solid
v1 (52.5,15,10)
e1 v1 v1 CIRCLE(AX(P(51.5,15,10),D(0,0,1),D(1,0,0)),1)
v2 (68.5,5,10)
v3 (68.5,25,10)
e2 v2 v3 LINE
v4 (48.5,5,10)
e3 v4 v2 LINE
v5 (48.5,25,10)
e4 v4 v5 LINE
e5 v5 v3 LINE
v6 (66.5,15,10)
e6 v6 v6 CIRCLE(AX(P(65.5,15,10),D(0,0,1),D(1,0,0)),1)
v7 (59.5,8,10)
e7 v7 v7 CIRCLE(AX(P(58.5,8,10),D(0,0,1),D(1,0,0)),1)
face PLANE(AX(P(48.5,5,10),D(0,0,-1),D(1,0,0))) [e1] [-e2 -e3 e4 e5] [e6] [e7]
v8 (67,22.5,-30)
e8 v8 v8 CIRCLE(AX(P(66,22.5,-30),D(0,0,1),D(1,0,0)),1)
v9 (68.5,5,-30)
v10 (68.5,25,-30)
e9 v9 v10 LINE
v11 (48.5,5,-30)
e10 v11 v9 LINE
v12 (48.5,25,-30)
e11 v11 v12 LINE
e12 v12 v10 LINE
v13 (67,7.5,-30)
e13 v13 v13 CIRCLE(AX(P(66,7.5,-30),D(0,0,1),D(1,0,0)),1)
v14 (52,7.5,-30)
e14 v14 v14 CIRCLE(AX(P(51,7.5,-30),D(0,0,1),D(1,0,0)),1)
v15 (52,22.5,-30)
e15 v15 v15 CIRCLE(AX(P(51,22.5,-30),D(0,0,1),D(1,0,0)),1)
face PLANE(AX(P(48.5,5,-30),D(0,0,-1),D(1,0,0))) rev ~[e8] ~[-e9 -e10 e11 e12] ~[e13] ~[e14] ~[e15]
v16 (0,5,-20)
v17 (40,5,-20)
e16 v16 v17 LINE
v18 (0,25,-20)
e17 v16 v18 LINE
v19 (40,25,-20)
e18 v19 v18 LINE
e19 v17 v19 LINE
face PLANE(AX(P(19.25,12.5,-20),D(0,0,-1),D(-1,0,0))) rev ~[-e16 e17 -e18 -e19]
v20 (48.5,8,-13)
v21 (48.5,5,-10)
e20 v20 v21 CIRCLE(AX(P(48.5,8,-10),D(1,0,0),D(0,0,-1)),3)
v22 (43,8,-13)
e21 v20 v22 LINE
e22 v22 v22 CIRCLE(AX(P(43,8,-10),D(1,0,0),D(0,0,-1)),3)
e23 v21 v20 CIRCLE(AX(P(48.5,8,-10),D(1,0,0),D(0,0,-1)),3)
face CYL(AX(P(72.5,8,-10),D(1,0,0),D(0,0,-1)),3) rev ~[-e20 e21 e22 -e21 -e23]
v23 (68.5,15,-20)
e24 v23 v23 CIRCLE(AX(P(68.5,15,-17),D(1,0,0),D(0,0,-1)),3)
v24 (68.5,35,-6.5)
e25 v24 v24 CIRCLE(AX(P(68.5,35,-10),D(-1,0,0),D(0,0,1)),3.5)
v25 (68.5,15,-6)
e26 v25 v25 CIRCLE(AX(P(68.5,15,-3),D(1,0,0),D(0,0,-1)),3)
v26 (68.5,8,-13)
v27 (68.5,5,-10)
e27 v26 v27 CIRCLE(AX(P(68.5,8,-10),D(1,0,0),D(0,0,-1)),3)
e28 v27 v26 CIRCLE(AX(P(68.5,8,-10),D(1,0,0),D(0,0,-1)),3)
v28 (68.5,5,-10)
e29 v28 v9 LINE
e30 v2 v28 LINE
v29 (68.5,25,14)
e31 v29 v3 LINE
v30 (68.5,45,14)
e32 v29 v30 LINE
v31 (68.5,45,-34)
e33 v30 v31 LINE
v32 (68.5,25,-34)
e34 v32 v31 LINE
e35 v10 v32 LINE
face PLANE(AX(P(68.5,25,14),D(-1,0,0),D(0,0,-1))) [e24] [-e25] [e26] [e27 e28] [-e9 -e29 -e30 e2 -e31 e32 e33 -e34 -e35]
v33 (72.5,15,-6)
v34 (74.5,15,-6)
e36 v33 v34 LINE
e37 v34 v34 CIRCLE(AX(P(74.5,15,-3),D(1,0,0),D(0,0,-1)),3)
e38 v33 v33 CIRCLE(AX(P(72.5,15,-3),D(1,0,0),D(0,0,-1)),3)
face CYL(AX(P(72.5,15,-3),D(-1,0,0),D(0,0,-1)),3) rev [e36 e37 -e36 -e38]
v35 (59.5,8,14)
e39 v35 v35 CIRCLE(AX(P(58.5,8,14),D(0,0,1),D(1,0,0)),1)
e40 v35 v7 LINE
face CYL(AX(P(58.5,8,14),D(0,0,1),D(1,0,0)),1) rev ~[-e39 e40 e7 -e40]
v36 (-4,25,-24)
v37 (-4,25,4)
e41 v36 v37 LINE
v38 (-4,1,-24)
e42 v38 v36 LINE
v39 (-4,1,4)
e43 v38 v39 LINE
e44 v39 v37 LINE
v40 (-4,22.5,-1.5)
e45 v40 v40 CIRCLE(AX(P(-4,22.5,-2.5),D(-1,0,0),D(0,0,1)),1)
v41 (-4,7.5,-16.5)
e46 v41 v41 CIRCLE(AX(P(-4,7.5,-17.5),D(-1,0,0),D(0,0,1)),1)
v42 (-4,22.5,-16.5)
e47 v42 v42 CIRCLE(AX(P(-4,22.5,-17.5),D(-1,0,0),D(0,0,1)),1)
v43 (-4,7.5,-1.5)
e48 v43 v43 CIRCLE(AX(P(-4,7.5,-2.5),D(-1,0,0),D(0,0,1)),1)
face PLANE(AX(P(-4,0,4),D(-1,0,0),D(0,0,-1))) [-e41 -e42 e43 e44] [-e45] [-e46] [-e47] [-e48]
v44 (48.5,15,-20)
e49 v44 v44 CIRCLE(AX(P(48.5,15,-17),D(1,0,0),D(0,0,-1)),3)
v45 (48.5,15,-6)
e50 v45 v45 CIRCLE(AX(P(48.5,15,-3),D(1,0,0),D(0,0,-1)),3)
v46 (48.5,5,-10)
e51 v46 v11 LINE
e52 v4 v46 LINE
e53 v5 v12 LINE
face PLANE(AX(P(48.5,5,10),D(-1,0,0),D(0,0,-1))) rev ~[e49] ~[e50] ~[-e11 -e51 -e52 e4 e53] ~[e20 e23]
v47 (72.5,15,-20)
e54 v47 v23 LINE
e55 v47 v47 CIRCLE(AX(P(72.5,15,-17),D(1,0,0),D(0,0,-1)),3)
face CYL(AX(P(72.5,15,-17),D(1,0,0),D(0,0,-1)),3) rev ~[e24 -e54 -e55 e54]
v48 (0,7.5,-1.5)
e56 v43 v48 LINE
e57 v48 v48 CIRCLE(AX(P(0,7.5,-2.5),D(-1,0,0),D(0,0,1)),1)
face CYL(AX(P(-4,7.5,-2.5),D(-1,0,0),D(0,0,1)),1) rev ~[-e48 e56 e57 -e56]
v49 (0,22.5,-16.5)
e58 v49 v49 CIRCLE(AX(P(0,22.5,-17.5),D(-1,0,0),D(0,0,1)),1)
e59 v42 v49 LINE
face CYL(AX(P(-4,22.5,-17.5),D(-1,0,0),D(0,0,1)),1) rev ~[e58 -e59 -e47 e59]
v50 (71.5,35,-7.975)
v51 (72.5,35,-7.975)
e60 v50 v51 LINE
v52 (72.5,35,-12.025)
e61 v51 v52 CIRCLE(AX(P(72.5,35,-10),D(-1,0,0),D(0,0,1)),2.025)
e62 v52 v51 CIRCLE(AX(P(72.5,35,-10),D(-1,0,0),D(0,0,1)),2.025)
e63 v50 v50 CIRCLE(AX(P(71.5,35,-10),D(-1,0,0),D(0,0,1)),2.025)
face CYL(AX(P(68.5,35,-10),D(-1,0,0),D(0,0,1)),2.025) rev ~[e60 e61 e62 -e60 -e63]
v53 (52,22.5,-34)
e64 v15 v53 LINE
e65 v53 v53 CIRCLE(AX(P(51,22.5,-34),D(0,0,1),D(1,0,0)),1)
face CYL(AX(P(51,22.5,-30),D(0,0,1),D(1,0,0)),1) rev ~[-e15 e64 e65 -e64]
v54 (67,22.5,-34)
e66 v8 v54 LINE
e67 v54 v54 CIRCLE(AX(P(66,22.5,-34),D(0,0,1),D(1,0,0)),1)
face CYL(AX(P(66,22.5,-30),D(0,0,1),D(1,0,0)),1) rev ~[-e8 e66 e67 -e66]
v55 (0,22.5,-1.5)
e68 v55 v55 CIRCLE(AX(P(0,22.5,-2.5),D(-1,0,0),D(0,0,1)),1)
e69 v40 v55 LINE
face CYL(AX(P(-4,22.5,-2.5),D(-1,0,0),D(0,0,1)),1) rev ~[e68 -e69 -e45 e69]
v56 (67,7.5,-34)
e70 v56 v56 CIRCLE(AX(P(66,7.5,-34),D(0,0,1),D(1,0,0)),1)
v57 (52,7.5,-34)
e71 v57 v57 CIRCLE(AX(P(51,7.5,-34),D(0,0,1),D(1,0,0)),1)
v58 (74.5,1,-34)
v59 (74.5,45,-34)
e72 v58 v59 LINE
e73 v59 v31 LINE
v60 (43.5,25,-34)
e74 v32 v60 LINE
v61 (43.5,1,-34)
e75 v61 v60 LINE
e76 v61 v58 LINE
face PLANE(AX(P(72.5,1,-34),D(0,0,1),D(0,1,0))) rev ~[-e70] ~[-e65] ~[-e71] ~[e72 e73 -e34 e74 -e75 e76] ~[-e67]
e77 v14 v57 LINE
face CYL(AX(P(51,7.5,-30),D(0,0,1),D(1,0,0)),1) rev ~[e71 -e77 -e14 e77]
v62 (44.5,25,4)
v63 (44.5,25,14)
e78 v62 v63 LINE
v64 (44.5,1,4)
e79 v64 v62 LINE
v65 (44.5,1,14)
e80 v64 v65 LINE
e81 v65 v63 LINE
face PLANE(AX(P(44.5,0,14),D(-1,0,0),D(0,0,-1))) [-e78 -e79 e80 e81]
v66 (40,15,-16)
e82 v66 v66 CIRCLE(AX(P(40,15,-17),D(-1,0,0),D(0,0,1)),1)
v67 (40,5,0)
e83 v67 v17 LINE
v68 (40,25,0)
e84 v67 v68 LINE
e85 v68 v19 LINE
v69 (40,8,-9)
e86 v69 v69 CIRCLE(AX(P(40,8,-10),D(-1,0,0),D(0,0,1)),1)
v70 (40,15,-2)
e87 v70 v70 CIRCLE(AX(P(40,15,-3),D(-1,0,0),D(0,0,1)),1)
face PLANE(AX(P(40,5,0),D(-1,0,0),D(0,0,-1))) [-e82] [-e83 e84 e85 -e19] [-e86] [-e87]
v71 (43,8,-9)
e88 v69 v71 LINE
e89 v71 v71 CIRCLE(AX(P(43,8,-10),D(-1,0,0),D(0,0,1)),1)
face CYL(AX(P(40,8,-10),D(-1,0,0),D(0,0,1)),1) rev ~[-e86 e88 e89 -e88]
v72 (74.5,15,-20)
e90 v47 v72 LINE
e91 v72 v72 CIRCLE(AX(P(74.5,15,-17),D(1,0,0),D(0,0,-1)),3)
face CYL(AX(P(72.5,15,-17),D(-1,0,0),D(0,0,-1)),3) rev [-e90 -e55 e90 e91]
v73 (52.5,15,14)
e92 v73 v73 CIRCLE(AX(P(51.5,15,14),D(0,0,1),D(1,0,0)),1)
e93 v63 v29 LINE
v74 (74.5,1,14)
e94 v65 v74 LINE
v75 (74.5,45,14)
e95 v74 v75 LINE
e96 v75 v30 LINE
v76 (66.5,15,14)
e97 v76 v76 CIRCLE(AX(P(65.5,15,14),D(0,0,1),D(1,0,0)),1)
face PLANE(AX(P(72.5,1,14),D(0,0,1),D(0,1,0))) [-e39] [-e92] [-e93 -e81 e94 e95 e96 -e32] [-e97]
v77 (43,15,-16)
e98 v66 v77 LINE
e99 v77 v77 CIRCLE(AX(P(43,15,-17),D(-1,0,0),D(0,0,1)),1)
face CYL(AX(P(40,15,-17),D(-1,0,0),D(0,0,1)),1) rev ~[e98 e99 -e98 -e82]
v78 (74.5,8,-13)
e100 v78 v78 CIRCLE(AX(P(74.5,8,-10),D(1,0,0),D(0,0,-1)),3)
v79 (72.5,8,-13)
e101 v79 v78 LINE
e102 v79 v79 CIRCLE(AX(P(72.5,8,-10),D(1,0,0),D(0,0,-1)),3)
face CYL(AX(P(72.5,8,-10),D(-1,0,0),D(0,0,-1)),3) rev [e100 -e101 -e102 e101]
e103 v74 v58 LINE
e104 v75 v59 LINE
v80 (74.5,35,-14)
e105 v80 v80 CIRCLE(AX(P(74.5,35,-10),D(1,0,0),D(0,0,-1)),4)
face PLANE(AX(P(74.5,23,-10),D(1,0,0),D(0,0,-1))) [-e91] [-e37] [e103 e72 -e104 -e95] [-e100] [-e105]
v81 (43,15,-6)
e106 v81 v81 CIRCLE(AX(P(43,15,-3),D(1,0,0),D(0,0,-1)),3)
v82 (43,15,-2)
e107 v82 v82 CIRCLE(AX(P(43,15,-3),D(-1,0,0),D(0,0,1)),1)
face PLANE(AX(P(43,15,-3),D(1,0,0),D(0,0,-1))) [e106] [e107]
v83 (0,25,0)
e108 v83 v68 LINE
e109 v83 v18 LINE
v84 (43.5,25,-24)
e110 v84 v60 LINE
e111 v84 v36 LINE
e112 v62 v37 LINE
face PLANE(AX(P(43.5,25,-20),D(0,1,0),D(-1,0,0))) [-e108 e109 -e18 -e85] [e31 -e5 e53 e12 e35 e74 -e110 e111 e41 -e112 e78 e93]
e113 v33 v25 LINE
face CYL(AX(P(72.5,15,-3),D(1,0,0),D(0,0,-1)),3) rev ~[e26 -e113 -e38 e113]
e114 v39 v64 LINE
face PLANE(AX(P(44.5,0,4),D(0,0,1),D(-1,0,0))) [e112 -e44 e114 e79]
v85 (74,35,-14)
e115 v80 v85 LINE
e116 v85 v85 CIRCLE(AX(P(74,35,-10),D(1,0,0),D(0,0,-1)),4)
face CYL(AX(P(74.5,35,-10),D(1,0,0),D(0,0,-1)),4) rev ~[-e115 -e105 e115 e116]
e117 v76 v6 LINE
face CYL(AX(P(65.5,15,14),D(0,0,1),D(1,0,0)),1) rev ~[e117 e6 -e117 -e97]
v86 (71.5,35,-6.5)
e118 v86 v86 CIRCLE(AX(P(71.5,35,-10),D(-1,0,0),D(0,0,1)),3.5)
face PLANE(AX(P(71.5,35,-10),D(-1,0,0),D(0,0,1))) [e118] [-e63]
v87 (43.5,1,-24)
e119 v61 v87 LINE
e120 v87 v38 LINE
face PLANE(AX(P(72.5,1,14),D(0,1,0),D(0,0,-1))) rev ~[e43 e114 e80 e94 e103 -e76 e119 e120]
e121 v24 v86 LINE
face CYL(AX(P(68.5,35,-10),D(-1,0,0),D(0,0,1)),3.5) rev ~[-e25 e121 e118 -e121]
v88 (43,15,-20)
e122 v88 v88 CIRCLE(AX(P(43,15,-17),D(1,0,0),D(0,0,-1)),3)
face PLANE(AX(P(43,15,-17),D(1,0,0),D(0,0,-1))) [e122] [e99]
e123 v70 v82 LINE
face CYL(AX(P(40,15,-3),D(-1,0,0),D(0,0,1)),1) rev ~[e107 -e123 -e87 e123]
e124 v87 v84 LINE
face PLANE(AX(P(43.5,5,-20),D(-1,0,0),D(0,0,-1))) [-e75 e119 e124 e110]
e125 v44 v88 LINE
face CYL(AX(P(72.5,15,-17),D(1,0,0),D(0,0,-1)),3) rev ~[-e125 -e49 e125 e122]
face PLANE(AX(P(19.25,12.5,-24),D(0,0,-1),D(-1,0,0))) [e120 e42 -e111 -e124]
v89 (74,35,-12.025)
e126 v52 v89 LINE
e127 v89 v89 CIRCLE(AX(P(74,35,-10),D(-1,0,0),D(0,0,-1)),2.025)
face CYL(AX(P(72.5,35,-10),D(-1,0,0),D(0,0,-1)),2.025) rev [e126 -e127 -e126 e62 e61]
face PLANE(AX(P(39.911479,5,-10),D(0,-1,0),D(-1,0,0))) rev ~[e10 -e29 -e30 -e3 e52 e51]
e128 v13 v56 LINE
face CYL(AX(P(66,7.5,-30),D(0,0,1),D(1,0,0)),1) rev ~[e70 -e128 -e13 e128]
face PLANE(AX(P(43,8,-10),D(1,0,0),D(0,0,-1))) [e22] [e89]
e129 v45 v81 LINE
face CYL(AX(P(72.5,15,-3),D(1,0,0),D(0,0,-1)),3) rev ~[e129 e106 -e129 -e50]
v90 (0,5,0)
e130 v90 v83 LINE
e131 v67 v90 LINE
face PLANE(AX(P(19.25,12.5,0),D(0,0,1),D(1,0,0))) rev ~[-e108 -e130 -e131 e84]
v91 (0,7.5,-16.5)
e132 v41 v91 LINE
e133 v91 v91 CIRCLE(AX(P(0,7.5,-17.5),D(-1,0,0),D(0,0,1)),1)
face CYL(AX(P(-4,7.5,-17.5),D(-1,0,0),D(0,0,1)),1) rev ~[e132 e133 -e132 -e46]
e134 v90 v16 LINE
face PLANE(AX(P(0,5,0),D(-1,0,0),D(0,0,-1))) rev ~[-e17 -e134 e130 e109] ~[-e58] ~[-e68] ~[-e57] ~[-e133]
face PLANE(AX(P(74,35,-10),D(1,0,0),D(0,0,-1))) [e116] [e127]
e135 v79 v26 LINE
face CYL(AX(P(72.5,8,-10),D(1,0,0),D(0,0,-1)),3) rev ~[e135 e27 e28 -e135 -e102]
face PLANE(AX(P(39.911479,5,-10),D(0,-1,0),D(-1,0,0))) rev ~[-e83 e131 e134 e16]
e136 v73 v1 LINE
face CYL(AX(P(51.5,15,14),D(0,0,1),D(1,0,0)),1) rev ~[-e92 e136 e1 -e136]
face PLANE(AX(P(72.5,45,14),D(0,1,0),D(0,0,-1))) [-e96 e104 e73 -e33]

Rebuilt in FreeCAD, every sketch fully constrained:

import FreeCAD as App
import Part
import Sketcher
from FreeCAD import Vector

doc = App.newDocument("Part")
params = doc.addObject("Spreadsheet::Sheet", "Params")
for row, (alias, value) in enumerate([
    ("sketch1_width", "30 mm"),
    ("sketch1_height", "20 mm"),
    ("sketch1_height2", "15 mm"),
    ("sketch1_width2", "48.5 mm"),
    ("pad1_length", "5 mm"),
    ("sketch2_width", "30 mm"),
    ("sketch2_width2", "20 mm"),
    ("sketch2_width3", "5 mm"),
    ("sketch2_height", "15 mm"),
    ("sketch2_height2", "40 mm"),
    ("pad2_length", "20 mm"),
    ("sketch3_height", "25 mm"),
    ("sketch3_width", "48.5 mm"),
    ("pad3_length", "4 mm"),
    ("sketch4_height", "25 mm"),
    ("sketch4_width", "48.5 mm"),
    ("pad4_length", "4 mm"),
    ("sketch5_width", "29 mm"),
    ("sketch5_width2", "1 mm"),
    ("sketch5_height", "48 mm"),
    ("sketch5_height2", "10 mm"),
    ("pocket1_length", "218 mm"),
    ("sketch6_width", "4 mm"),
    ("sketch6_height", "48 mm"),
    ("pad5_length", "20 mm"),
    ("sketch7_width", "1 mm"),
    ("sketch7_height", "48 mm"),
    ("pocket2_length", "87 mm"),
    ("sketch8_diameter", "2 mm"),
    ("pocket3_length", "10 mm"),
    ("sketch9_diameter", "2 mm"),
    ("pocket4_length", "60 mm"),
    ("sketch10_diameter", "6 mm"),
    ("pocket5_length", "29.5 mm"),
    ("sketch11_diameter", "2 mm"),
    ("pocket6_length", "29.5 mm"),
    ("sketch12_diameter", "2 mm"),
    ("pocket7_length", "29.5 mm"),
    ("sketch13_diameter", "3.55 mm"),
    ("pocket8_length", "29.5 mm"),
    ("sketch14_diameter", "4.05 mm"),
    ("pocket9_length", "29.5 mm"),
    ("sketch15_diameter", "7 mm"),
    ("pocket10_length", "3 mm"),
    ("sketch16_diameter", "6 mm"),
    ("sketch16_diameter2", "4.05 mm"),
    ("sketch16_width", "44 mm"),
    ("sketch16_height", "48 mm"),
    ("pad6_length", "2 mm"),
    ("sketch17_diameter", "8 mm"),
    ("pocket11_length", "0.5 mm"),
], start=1):
    params.set(f"A{row}", alias)
    params.set(f"B{row}", "=" + value)
    params.setAlias(f"B{row}", alias)

body = doc.addObject("PartDesign::Body", "Body")

# Sketch on XZ plane
sketch1 = body.newObject("Sketcher::SketchObject", "Sketch")
sketch1.AttachmentSupport = (doc.getObject("XZ_Plane"), [""])
sketch1.MapMode = "FlatFace"
sketch1.addGeometry([
    Part.LineSegment(Vector(44, -20, 0), Vector(-5, -20, 0)),  # 0
    Part.LineSegment(Vector(-5, -20, 0), Vector(-5, 0, 0)),  # 1
    Part.LineSegment(Vector(-5, 0, 0), Vector(44, 0, 0)),  # 2
    Part.LineSegment(Vector(44, 0, 0), Vector(44, 15, 0)),  # 3
    Part.LineSegment(Vector(44, 15, 0), Vector(74, 15, 0)),  # 4
    Part.LineSegment(Vector(74, 15, 0), Vector(74, -35, 0)),  # 5
    Part.LineSegment(Vector(74, -35, 0), Vector(44, -35, 0)),  # 6
    Part.LineSegment(Vector(44, -35, 0), Vector(44, -20, 0)),  # 7
], False)
sketch1.addConstraint([
    Sketcher.Constraint("Coincident", 0, 2, 1, 1),
    Sketcher.Constraint("Coincident", 1, 2, 2, 1),
    Sketcher.Constraint("Coincident", 2, 2, 3, 1),
    Sketcher.Constraint("Coincident", 3, 2, 4, 1),
    Sketcher.Constraint("Coincident", 4, 2, 5, 1),
    Sketcher.Constraint("Coincident", 5, 2, 6, 1),
    Sketcher.Constraint("Coincident", 6, 2, 7, 1),
    Sketcher.Constraint("Coincident", 7, 2, 0, 1),
    Sketcher.Constraint("Horizontal", 0),
    Sketcher.Constraint("Vertical", 1),
    Sketcher.Constraint("Horizontal", 2),
    Sketcher.Constraint("Vertical", 3),
    Sketcher.Constraint("Horizontal", 4),
    Sketcher.Constraint("Vertical", 5),
    Sketcher.Constraint("Horizontal", 6),
    Sketcher.Constraint("Vertical", 7),
    Sketcher.Constraint("PointOnObject", 1, 2, -1),
    Sketcher.Constraint("Vertical", 3, 2, 6, 2),
    Sketcher.Constraint("Equal", 3, 7),
    Sketcher.Constraint("DistanceX", 4, 1, 4, 2, 30.0),
    Sketcher.Constraint("DistanceY", 1, 1, 1, 2, 20.0),
    Sketcher.Constraint("DistanceY", 3, 1, 3, 2, 15.0),
    Sketcher.Constraint("DistanceX", 0, 2, 0, 1, 48.5),
    Sketcher.Constraint("DistanceX", 0, 2, -1, 1, 5.0),
])
sketch1.setExpression("Constraints[19]", "Params.sketch1_width")
sketch1.setExpression("Constraints[20]", "Params.sketch1_height")
sketch1.setExpression("Constraints[21]", "Params.sketch1_height2")
sketch1.setExpression("Constraints[22]", "Params.sketch1_width2")
pad1 = body.newObject("PartDesign::Pad", "Pad")
pad1.Profile = sketch1
pad1.setExpression("Length", "Params.pad1_length")
pad1.Reversed = True

# Sketch on XZ plane
sketch2 = body.newObject("Sketcher::SketchObject", "Sketch001")
sketch2.AttachmentSupport = (doc.getObject("XZ_Plane"), [""])
sketch2.MapMode = "FlatFace"
sketch2.AttachmentOffset = App.Placement(Vector(0, 0, -5), App.Rotation())
sketch2.addGeometry([
    Part.LineSegment(Vector(43.5, -20, 0), Vector(40, -20, 0)),  # 0
    Part.LineSegment(Vector(40, -20, 0), Vector(40, 0, 0)),  # 1
    Part.LineSegment(Vector(40, 0, 0), Vector(43.5, 0, 0)),  # 2
    Part.LineSegment(Vector(43.5, 0, 0), Vector(43.5, 15, 0)),  # 3
    Part.LineSegment(Vector(43.5, 15, 0), Vector(73.5, 15, 0)),  # 4
    Part.LineSegment(Vector(73.5, 15, 0), Vector(73.5, -35, 0)),  # 5
    Part.LineSegment(Vector(73.5, -35, 0), Vector(43.5, -35, 0)),  # 6
    Part.LineSegment(Vector(43.5, -35, 0), Vector(43.5, -20, 0)),  # 7
    Part.LineSegment(Vector(48.5, 10, 0), Vector(48.5, -30, 0)),  # 8
    Part.LineSegment(Vector(48.5, -30, 0), Vector(68.5, -30, 0)),  # 9
    Part.LineSegment(Vector(68.5, -30, 0), Vector(68.5, 10, 0)),  # 10
    Part.LineSegment(Vector(68.5, 10, 0), Vector(48.5, 10, 0)),  # 11
    Part.LineSegment(Vector(-5, -20, 0), Vector(-5, 0, 0)),  # 12
    Part.LineSegment(Vector(-5, 0, 0), Vector(0, 0, 0)),  # 13
    Part.LineSegment(Vector(0, 0, 0), Vector(0, -20, 0)),  # 14
    Part.LineSegment(Vector(0, -20, 0), Vector(-5, -20, 0)),  # 15
], False)
sketch2.addConstraint([
    Sketcher.Constraint("Coincident", 0, 2, 1, 1),
    Sketcher.Constraint("Coincident", 1, 2, 2, 1),
    Sketcher.Constraint("Coincident", 2, 2, 3, 1),
    Sketcher.Constraint("Coincident", 3, 2, 4, 1),
    Sketcher.Constraint("Coincident", 4, 2, 5, 1),
    Sketcher.Constraint("Coincident", 5, 2, 6, 1),
    Sketcher.Constraint("Coincident", 6, 2, 7, 1),
    Sketcher.Constraint("Coincident", 7, 2, 0, 1),
    Sketcher.Constraint("Coincident", 8, 2, 9, 1),
    Sketcher.Constraint("Coincident", 9, 2, 10, 1),
    Sketcher.Constraint("Coincident", 10, 2, 11, 1),
    Sketcher.Constraint("Coincident", 11, 2, 8, 1),
    Sketcher.Constraint("Coincident", 12, 2, 13, 1),
    Sketcher.Constraint("Coincident", 13, 2, 14, 1),
    Sketcher.Constraint("Coincident", 14, 2, 15, 1),
    Sketcher.Constraint("Coincident", 15, 2, 12, 1),
    Sketcher.Constraint("Horizontal", 0),
    Sketcher.Constraint("Vertical", 1),
    Sketcher.Constraint("Horizontal", 2),
    Sketcher.Constraint("Vertical", 3),
    Sketcher.Constraint("Horizontal", 4),
    Sketcher.Constraint("Vertical", 5),
    Sketcher.Constraint("Horizontal", 6),
    Sketcher.Constraint("Vertical", 7),
    Sketcher.Constraint("Vertical", 8),
    Sketcher.Constraint("Horizontal", 9),
    Sketcher.Constraint("Vertical", 10),
    Sketcher.Constraint("Horizontal", 11),
    Sketcher.Constraint("Vertical", 12),
    Sketcher.Constraint("Horizontal", 13),
    Sketcher.Constraint("Vertical", 14),
    Sketcher.Constraint("Horizontal", 15),
    Sketcher.Constraint("Coincident", 13, 2, -1, 1),
    Sketcher.Constraint("PointOnObject", 1, 2, -1),
    Sketcher.Constraint("Horizontal", 7, 2, 14, 2),
    Sketcher.Constraint("Vertical", 3, 2, 6, 2),
    Sketcher.Constraint("Equal", 11, 1),
    Sketcher.Constraint("Equal", 3, 7),
    Sketcher.Constraint("DistanceX", 4, 1, 4, 2, 30.0),
    Sketcher.Constraint("DistanceX", 9, 1, 9, 2, 20.0),
    Sketcher.Constraint("DistanceX", 13, 1, 13, 2, 5.0),
    Sketcher.Constraint("DistanceY", 3, 1, 3, 2, 15.0),
    Sketcher.Constraint("DistanceY", 8, 2, 8, 1, 40.0),
    Sketcher.Constraint("DistanceX", 0, 2, 0, 1, 3.5),
    Sketcher.Constraint("DistanceX", -1, 1, 0, 2, 40.0),
    Sketcher.Constraint("DistanceY", 8, 2, -1, 1, 30.0),
    Sketcher.Constraint("DistanceX", 6, 2, 8, 2, 5.0),
])
sketch2.setExpression("Constraints[38]", "Params.sketch2_width")
sketch2.setExpression("Constraints[39]", "Params.sketch2_width2")
sketch2.setExpression("Constraints[40]", "Params.sketch2_width3")
sketch2.setExpression("Constraints[41]", "Params.sketch2_height")
sketch2.setExpression("Constraints[42]", "Params.sketch2_height2")
pad2 = body.newObject("PartDesign::Pad", "Pad001")
pad2.Profile = sketch2
pad2.setExpression("Length", "Params.pad2_length")
pad2.Reversed = True

# Sketch on XY plane
sketch3 = body.newObject("Sketcher::SketchObject", "Sketch002")
sketch3.AttachmentSupport = (doc.getObject("XY_Plane"), [""])
sketch3.MapMode = "FlatFace"
sketch3.addGeometry([
    Part.LineSegment(Vector(-5, 25, 0), Vector(-5, 0, 0)),
    Part.LineSegment(Vector(-5, 0, 0), Vector(44, 0, 0)),
    Part.LineSegment(Vector(44, 0, 0), Vector(44, 25, 0)),
    Part.LineSegment(Vector(44, 25, 0), Vector(-5, 25, 0)),
], False)
sketch3.addConstraint([
    Sketcher.Constraint("Coincident", 0, 2, 1, 1),
    Sketcher.Constraint("Coincident", 1, 2, 2, 1),
    Sketcher.Constraint("Coincident", 2, 2, 3, 1),
    Sketcher.Constraint("Coincident", 3, 2, 0, 1),
    Sketcher.Constraint("Vertical", 0),
    Sketcher.Constraint("Horizontal", 1),
    Sketcher.Constraint("Vertical", 2),
    Sketcher.Constraint("Horizontal", 3),
    Sketcher.Constraint("PointOnObject", 0, 2, -1),
    Sketcher.Constraint("DistanceY", 0, 2, 0, 1, 25.0),
    Sketcher.Constraint("DistanceX", 1, 1, 1, 2, 48.5),
    Sketcher.Constraint("DistanceX", 0, 2, -1, 1, 5.0),
])
sketch3.setExpression("Constraints[9]", "Params.sketch3_height")
sketch3.setExpression("Constraints[10]", "Params.sketch3_width")
pad3 = body.newObject("PartDesign::Pad", "Pad002")
pad3.Profile = sketch3
pad3.setExpression("Length", "Params.pad3_length")

# Sketch on XY plane
sketch4 = body.newObject("Sketcher::SketchObject", "Sketch003")
sketch4.AttachmentSupport = (doc.getObject("XY_Plane"), [""])
sketch4.MapMode = "FlatFace"
sketch4.AttachmentOffset = App.Placement(Vector(0, 0, -20), App.Rotation())
sketch4.addGeometry([
    Part.LineSegment(Vector(44, 25, 0), Vector(44, 0, 0)),
    Part.LineSegment(Vector(44, 0, 0), Vector(-5, 0, 0)),
    Part.LineSegment(Vector(-5, 0, 0), Vector(-5, 25, 0)),
    Part.LineSegment(Vector(-5, 25, 0), Vector(44, 25, 0)),
], False)
sketch4.addConstraint([
    Sketcher.Constraint("Coincident", 0, 2, 1, 1),
    Sketcher.Constraint("Coincident", 1, 2, 2, 1),
    Sketcher.Constraint("Coincident", 2, 2, 3, 1),
    Sketcher.Constraint("Coincident", 3, 2, 0, 1),
    Sketcher.Constraint("Vertical", 0),
    Sketcher.Constraint("Horizontal", 1),
    Sketcher.Constraint("Vertical", 2),
    Sketcher.Constraint("Horizontal", 3),
    Sketcher.Constraint("PointOnObject", 0, 2, -1),
    Sketcher.Constraint("DistanceY", 0, 2, 0, 1, 25.0),
    Sketcher.Constraint("DistanceX", 1, 2, 1, 1, 48.5),
    Sketcher.Constraint("DistanceX", 1, 2, -1, 1, 5.0),
])
sketch4.setExpression("Constraints[9]", "Params.sketch4_height")
sketch4.setExpression("Constraints[10]", "Params.sketch4_width")
pad4 = body.newObject("PartDesign::Pad", "Pad003")
pad4.Profile = sketch4
pad4.setExpression("Length", "Params.pad4_length")
pad4.Reversed = True

# Sketch on XZ plane
sketch5 = body.newObject("Sketcher::SketchObject", "Sketch004")
sketch5.AttachmentSupport = (doc.getObject("XZ_Plane"), [""])
sketch5.MapMode = "FlatFace"
sketch5.addGeometry([
    Part.LineSegment(Vector(-127.3, 77.7, 0), Vector(-127.3, -89, 0)),  # 0
    Part.LineSegment(Vector(-127.3, -89, 0), Vector(166.7, -89, 0)),  # 1
    Part.LineSegment(Vector(166.7, -89, 0), Vector(166.7, 77.7, 0)),  # 2
    Part.LineSegment(Vector(166.7, 77.7, 0), Vector(-127.3, 77.7, 0)),  # 3
    Part.LineSegment(Vector(72.5, 14, 0), Vector(72.5, -34, 0)),  # 4
    Part.LineSegment(Vector(72.5, -34, 0), Vector(43.5, -34, 0)),  # 5
    Part.LineSegment(Vector(43.5, -34, 0), Vector(-4, -32.7, 0)),  # 6
    Part.LineSegment(Vector(-4, -32.7, 0), Vector(-4, 4, 0)),  # 7
    Part.LineSegment(Vector(-4, 4, 0), Vector(-3.6, 8.8, 0)),  # 8
    Part.LineSegment(Vector(-3.6, 8.8, 0), Vector(42.2, 8.8, 0)),  # 9
    Part.LineSegment(Vector(42.2, 8.8, 0), Vector(43.5, 4, 0)),  # 10
    Part.LineSegment(Vector(43.5, 4, 0), Vector(44.5, 4, 0)),  # 11
    Part.LineSegment(Vector(44.5, 4, 0), Vector(44.5, 14, 0)),  # 12
    Part.LineSegment(Vector(44.5, 14, 0), Vector(72.5, 14, 0)),  # 13
], False)
sketch5.addConstraint([
    Sketcher.Constraint("Coincident", 0, 2, 1, 1),
    Sketcher.Constraint("Coincident", 1, 2, 2, 1),
    Sketcher.Constraint("Coincident", 2, 2, 3, 1),
    Sketcher.Constraint("Coincident", 3, 2, 0, 1),
    Sketcher.Constraint("Coincident", 4, 2, 5, 1),
    Sketcher.Constraint("Coincident", 5, 2, 6, 1),
    Sketcher.Constraint("Coincident", 6, 2, 7, 1),
    Sketcher.Constraint("Coincident", 7, 2, 8, 1),
    Sketcher.Constraint("Coincident", 8, 2, 9, 1),
    Sketcher.Constraint("Coincident", 9, 2, 10, 1),
    Sketcher.Constraint("Coincident", 10, 2, 11, 1),
    Sketcher.Constraint("Coincident", 11, 2, 12, 1),
    Sketcher.Constraint("Coincident", 12, 2, 13, 1),
    Sketcher.Constraint("Coincident", 13, 2, 4, 1),
    Sketcher.Constraint("Vertical", 0),
    Sketcher.Constraint("Horizontal", 1),
    Sketcher.Constraint("Vertical", 2),
    Sketcher.Constraint("Horizontal", 3),
    Sketcher.Constraint("Vertical", 4),
    Sketcher.Constraint("Horizontal", 5),
    Sketcher.Constraint("Vertical", 7),
    Sketcher.Constraint("Horizontal", 9),
    Sketcher.Constraint("Horizontal", 11),
    Sketcher.Constraint("Vertical", 12),
    Sketcher.Constraint("Horizontal", 13),
    Sketcher.Constraint("Horizontal", 7, 2, 10, 2),
    Sketcher.Constraint("Vertical", 5, 2, 10, 2),
    Sketcher.Constraint("DistanceX", 5, 2, 5, 1, 29.0),
    Sketcher.Constraint("DistanceX", 11, 1, 11, 2, 1.0),
    Sketcher.Constraint("DistanceY", 4, 2, 4, 1, 48.0),
    Sketcher.Constraint("DistanceY", 12, 1, 12, 2, 10.0),
    Sketcher.Constraint("DistanceY", 4, 2, -1, 1, 34.0),
    Sketcher.Constraint("DistanceX", 6, 2, -1, 1, 4.0),
    Sketcher.Constraint("DistanceX", -1, 1, 4, 2, 72.5),
    Sketcher.Constraint("DistanceX", 9, 1, 9, 2, 45.739638),
    Sketcher.Constraint("DistanceY", 0, 2, 0, 1, 166.612051),
    Sketcher.Constraint("DistanceY", 0, 2, 6, 2, 56.3095),
    Sketcher.Constraint("DistanceX", 1, 1, 1, 2, 293.991295),
    Sketcher.Constraint("DistanceY", 7, 1, 7, 2, 36.651206),
    Sketcher.Constraint("DistanceX", -1, 1, 1, 2, 166.732748),
    Sketcher.Constraint("DistanceY", -1, 1, 8, 2, 8.83202),
    Sketcher.Constraint("Distance", 8, 4.851604),
])
sketch5.setExpression("Constraints[27]", "Params.sketch5_width")
sketch5.setExpression("Constraints[28]", "Params.sketch5_width2")
sketch5.setExpression("Constraints[29]", "Params.sketch5_height")
sketch5.setExpression("Constraints[30]", "Params.sketch5_height2")
pocket1 = body.newObject("PartDesign::Pocket", "Pocket")
pocket1.Profile = sketch5
pocket1.setExpression("Length", "Params.pocket1_length")

# Sketch on XZ plane
sketch6 = body.newObject("Sketcher::SketchObject", "Sketch005")
sketch6.AttachmentSupport = (doc.getObject("XZ_Plane"), [""])
sketch6.MapMode = "FlatFace"
sketch6.AttachmentOffset = App.Placement(Vector(0, 0, -25), App.Rotation())
sketch6.addGeometry([
    Part.LineSegment(Vector(68.5, -34, 0), Vector(68.5, 14, 0)),
    Part.LineSegment(Vector(68.5, 14, 0), Vector(72.5, 14, 0)),
    Part.LineSegment(Vector(72.5, 14, 0), Vector(72.5, -34, 0)),
    Part.LineSegment(Vector(72.5, -34, 0), Vector(68.5, -34, 0)),
], False)
sketch6.addConstraint([
    Sketcher.Constraint("Coincident", 0, 2, 1, 1),
    Sketcher.Constraint("Coincident", 1, 2, 2, 1),
    Sketcher.Constraint("Coincident", 2, 2, 3, 1),
    Sketcher.Constraint("Coincident", 3, 2, 0, 1),
    Sketcher.Constraint("Vertical", 0),
    Sketcher.Constraint("Horizontal", 1),
    Sketcher.Constraint("Vertical", 2),
    Sketcher.Constraint("Horizontal", 3),
    Sketcher.Constraint("DistanceX", 1, 1, 1, 2, 4.0),
    Sketcher.Constraint("DistanceY", 0, 1, 0, 2, 48.0),
    Sketcher.Constraint("DistanceY", -1, 1, 0, 2, 14.0),
    Sketcher.Constraint("DistanceX", -1, 1, 0, 2, 68.5),
])
sketch6.setExpression("Constraints[8]", "Params.sketch6_width")
sketch6.setExpression("Constraints[9]", "Params.sketch6_height")
pad5 = body.newObject("PartDesign::Pad", "Pad004")
pad5.Profile = sketch6
pad5.setExpression("Length", "Params.pad5_length")
pad5.Reversed = True

# Sketch on YZ plane
sketch7 = body.newObject("Sketcher::SketchObject", "Sketch006")
sketch7.AttachmentSupport = (doc.getObject("YZ_Plane"), [""])
sketch7.MapMode = "FlatFace"
sketch7.AttachmentOffset = App.Placement(Vector(0, 0, -4), App.Rotation())
sketch7.addGeometry([
    Part.LineSegment(Vector(1, -34, 0), Vector(0, -34, 0)),
    Part.LineSegment(Vector(0, -34, 0), Vector(0, 14, 0)),
    Part.LineSegment(Vector(0, 14, 0), Vector(1, 14, 0)),
    Part.LineSegment(Vector(1, 14, 0), Vector(1, -34, 0)),
], False)
sketch7.addConstraint([
    Sketcher.Constraint("Coincident", 0, 2, 1, 1),
    Sketcher.Constraint("Coincident", 1, 2, 2, 1),
    Sketcher.Constraint("Coincident", 2, 2, 3, 1),
    Sketcher.Constraint("Coincident", 3, 2, 0, 1),
    Sketcher.Constraint("Horizontal", 0),
    Sketcher.Constraint("Vertical", 1),
    Sketcher.Constraint("Horizontal", 2),
    Sketcher.Constraint("Vertical", 3),
    Sketcher.Constraint("PointOnObject", 0, 2, -2),
    Sketcher.Constraint("DistanceX", 0, 2, 0, 1, 1.0),
    Sketcher.Constraint("DistanceY", 1, 1, 1, 2, 48.0),
    Sketcher.Constraint("DistanceY", 0, 2, -1, 1, 34.0),
])
sketch7.setExpression("Constraints[9]", "Params.sketch7_width")
sketch7.setExpression("Constraints[10]", "Params.sketch7_height")
pocket2 = body.newObject("PartDesign::Pocket", "Pocket001")
pocket2.Profile = sketch7
pocket2.setExpression("Length", "Params.pocket2_length")
pocket2.Reversed = True

# Sketch on YZ plane
sketch8 = body.newObject("Sketcher::SketchObject", "Sketch007")
sketch8.AttachmentSupport = (doc.getObject("YZ_Plane"), [""])
sketch8.MapMode = "FlatFace"
sketch8.AttachmentOffset = App.Placement(Vector(0, 0, -4), App.Rotation())
sketch8.addGeometry([
    Part.Circle(Vector(22.5, -2.5, 0), Vector(0, 0, 1), 1),
    Part.Circle(Vector(22.5, -17.5, 0), Vector(0, 0, 1), 1),
    Part.Circle(Vector(7.5, -17.5, 0), Vector(0, 0, 1), 1),
    Part.Circle(Vector(7.5, -2.5, 0), Vector(0, 0, 1), 1),
], False)
sketch8.addConstraint([
    Sketcher.Constraint("Equal", 0, 1),
    Sketcher.Constraint("Equal", 1, 2),
    Sketcher.Constraint("Equal", 2, 3),
    Sketcher.Constraint("Horizontal", 1, 3, 2, 3),
    Sketcher.Constraint("Horizontal", 0, 3, 3, 3),
    Sketcher.Constraint("Vertical", 0, 3, 1, 3),
    Sketcher.Constraint("Vertical", 2, 3, 3, 3),
    Sketcher.Constraint("Diameter", 0, 2.0),
    Sketcher.Constraint("DistanceY", 1, 3, 0, 3, 15.0),
    Sketcher.Constraint("DistanceX", 2, 3, 1, 3, 15.0),
    Sketcher.Constraint("DistanceX", -1, 1, 0, 3, 22.5),
    Sketcher.Constraint("DistanceY", 0, 3, -1, 1, 2.5),
])
sketch8.setExpression("Constraints[7]", "Params.sketch8_diameter")
pocket3 = body.newObject("PartDesign::Pocket", "Pocket002")
pocket3.Profile = sketch8
pocket3.setExpression("Length", "Params.pocket3_length")
pocket3.Reversed = True

# Sketch on YZ plane
sketch9 = body.newObject("Sketcher::SketchObject", "Sketch008")
sketch9.AttachmentSupport = (doc.getObject("YZ_Plane"), [""])
sketch9.MapMode = "FlatFace"
sketch9.AttachmentOffset = App.Placement(Vector(0, 0, 40), App.Rotation())
sketch9.addGeometry([
    Part.Circle(Vector(15, -3, 0), Vector(0, 0, 1), 1),
    Part.Circle(Vector(8, -10, 0), Vector(0, 0, 1), 1),
    Part.Circle(Vector(15, -17, 0), Vector(0, 0, 1), 1),
], False)
sketch9.addConstraint([
    Sketcher.Constraint("Equal", 0, 1),
    Sketcher.Constraint("Equal", 1, 2),
    Sketcher.Constraint("Vertical", 0, 3, 2, 3),
    Sketcher.Constraint("Diameter", 0, 2.0),
    Sketcher.Constraint("DistanceX", -1, 1, 0, 3, 15.0),
    Sketcher.Constraint("DistanceY", 0, 3, -1, 1, 3.0),
    Sketcher.Constraint("DistanceX", -1, 1, 1, 3, 8.0),
    Sketcher.Constraint("DistanceY", 1, 3, -1, 1, 10.0),
    Sketcher.Constraint("DistanceY", 2, 3, -1, 1, 17.0),
])
sketch9.setExpression("Constraints[3]", "Params.sketch9_diameter")
pocket4 = body.newObject("PartDesign::Pocket", "Pocket003")
pocket4.Profile = sketch9
pocket4.setExpression("Length", "Params.pocket4_length")
pocket4.Reversed = True

# Sketch on YZ plane
sketch10 = body.newObject("Sketcher::SketchObject", "Sketch009")
sketch10.AttachmentSupport = (doc.getObject("YZ_Plane"), [""])
sketch10.MapMode = "FlatFace"
sketch10.AttachmentOffset = App.Placement(Vector(0, 0, 72.5), App.Rotation())
sketch10.addGeometry([
    Part.Circle(Vector(15, -17, 0), Vector(0, 0, 1), 3),
    Part.Circle(Vector(8, -10, 0), Vector(0, 0, 1), 3),
    Part.Circle(Vector(15, -3, 0), Vector(0, 0, 1), 3),
], False)
sketch10.addConstraint([
    Sketcher.Constraint("Equal", 0, 1),
    Sketcher.Constraint("Equal", 1, 2),
    Sketcher.Constraint("Vertical", 0, 3, 2, 3),
    Sketcher.Constraint("Diameter", 0, 6.0),
    Sketcher.Constraint("DistanceX", -1, 1, 0, 3, 15.0),
    Sketcher.Constraint("DistanceY", 0, 3, -1, 1, 17.0),
    Sketcher.Constraint("DistanceX", -1, 1, 1, 3, 8.0),
    Sketcher.Constraint("DistanceY", 1, 3, -1, 1, 10.0),
    Sketcher.Constraint("DistanceY", 2, 3, -1, 1, 3.0),
])
sketch10.setExpression("Constraints[3]", "Params.sketch10_diameter")
pocket5 = body.newObject("PartDesign::Pocket", "Pocket004")
pocket5.Profile = sketch10
pocket5.setExpression("Length", "Params.pocket5_length")

# Sketch on XY plane
sketch11 = body.newObject("Sketcher::SketchObject", "Sketch010")
sketch11.AttachmentSupport = (doc.getObject("XY_Plane"), [""])
sketch11.MapMode = "FlatFace"
sketch11.AttachmentOffset = App.Placement(Vector(0, 0, 14), App.Rotation())
sketch11.addGeometry([
    Part.Circle(Vector(58.5, 8, 0), Vector(0, 0, 1), 1),
    Part.Circle(Vector(51.5, 15, 0), Vector(0, 0, 1), 1),
    Part.Circle(Vector(65.5, 15, 0), Vector(0, 0, 1), 1),
], False)
sketch11.addConstraint([
    Sketcher.Constraint("Equal", 0, 1),
    Sketcher.Constraint("Equal", 1, 2),
    Sketcher.Constraint("Horizontal", 1, 3, 2, 3),
    Sketcher.Constraint("Diameter", 0, 2.0),
    Sketcher.Constraint("DistanceY", -1, 1, 0, 3, 8.0),
    Sketcher.Constraint("DistanceY", -1, 1, 1, 3, 15.0),
    Sketcher.Constraint("DistanceX", 1, 3, 0, 3, 7.0),
    Sketcher.Constraint("DistanceX", 0, 3, 2, 3, 7.0),
    Sketcher.Constraint("DistanceX", -1, 1, 0, 3, 58.5),
])
sketch11.setExpression("Constraints[3]", "Params.sketch11_diameter")
pocket6 = body.newObject("PartDesign::Pocket", "Pocket005")
pocket6.Profile = sketch11
pocket6.setExpression("Length", "Params.pocket6_length")

# Sketch on XY plane
sketch12 = body.newObject("Sketcher::SketchObject", "Sketch011")
sketch12.AttachmentSupport = (doc.getObject("XY_Plane"), [""])
sketch12.MapMode = "FlatFace"
sketch12.AttachmentOffset = App.Placement(Vector(0, 0, -30), App.Rotation())
sketch12.addGeometry([
    Part.Circle(Vector(66, 22.5, 0), Vector(0, 0, 1), 1),
    Part.Circle(Vector(66, 7.5, 0), Vector(0, 0, 1), 1),
    Part.Circle(Vector(51, 7.5, 0), Vector(0, 0, 1), 1),
    Part.Circle(Vector(51, 22.5, 0), Vector(0, 0, 1), 1),
], False)
sketch12.addConstraint([
    Sketcher.Constraint("Equal", 0, 1),
    Sketcher.Constraint("Equal", 1, 2),
    Sketcher.Constraint("Equal", 2, 3),
    Sketcher.Constraint("Horizontal", 1, 3, 2, 3),
    Sketcher.Constraint("Horizontal", 0, 3, 3, 3),
    Sketcher.Constraint("Vertical", 0, 3, 1, 3),
    Sketcher.Constraint("Vertical", 2, 3, 3, 3),
    Sketcher.Constraint("Diameter", 0, 2.0),
    Sketcher.Constraint("DistanceX", -1, 1, 0, 3, 66.0),
    Sketcher.Constraint("DistanceX", -1, 1, 2, 3, 51.0),
    Sketcher.Constraint("DistanceY", 1, 3, 0, 3, 15.0),
    Sketcher.Constraint("DistanceY", -1, 1, 0, 3, 22.5),
])
sketch12.setExpression("Constraints[7]", "Params.sketch12_diameter")
pocket7 = body.newObject("PartDesign::Pocket", "Pocket006")
pocket7.Profile = sketch12
pocket7.setExpression("Length", "Params.pocket7_length")

# Sketch on YZ plane
sketch13 = body.newObject("Sketcher::SketchObject", "Sketch012")
sketch13.AttachmentSupport = (doc.getObject("YZ_Plane"), [""])
sketch13.MapMode = "FlatFace"
sketch13.AttachmentOffset = App.Placement(Vector(0, 0, 72.5), App.Rotation())
sketch13.addGeometry(Part.Circle(Vector(35, -10, 0), Vector(0, 0, 1), 1.8), False)
sketch13.addConstraint([
    Sketcher.Constraint("Diameter", 0, 3.55),
    Sketcher.Constraint("DistanceX", -1, 1, 0, 3, 35.0),
    Sketcher.Constraint("DistanceY", 0, 3, -1, 1, 10.0),
])
sketch13.setExpression("Constraints[0]", "Params.sketch13_diameter")
pocket8 = body.newObject("PartDesign::Pocket", "Pocket007")
pocket8.Profile = sketch13
pocket8.setExpression("Length", "Params.pocket8_length")

# Sketch on YZ plane
sketch14 = body.newObject("Sketcher::SketchObject", "Sketch013")
sketch14.AttachmentSupport = (doc.getObject("YZ_Plane"), [""])
sketch14.MapMode = "FlatFace"
sketch14.AttachmentOffset = App.Placement(Vector(0, 0, 68.5), App.Rotation())
sketch14.addGeometry(Part.Circle(Vector(35, -10, 0), Vector(0, 0, 1), 2), False)
sketch14.addConstraint([
    Sketcher.Constraint("Diameter", 0, 4.05),
    Sketcher.Constraint("DistanceX", -1, 1, 0, 3, 35.0),
    Sketcher.Constraint("DistanceY", 0, 3, -1, 1, 10.0),
])
sketch14.setExpression("Constraints[0]", "Params.sketch14_diameter")
pocket9 = body.newObject("PartDesign::Pocket", "Pocket008")
pocket9.Profile = sketch14
pocket9.setExpression("Length", "Params.pocket9_length")
pocket9.Reversed = True

# Sketch on YZ plane
sketch15 = body.newObject("Sketcher::SketchObject", "Sketch014")
sketch15.AttachmentSupport = (doc.getObject("YZ_Plane"), [""])
sketch15.MapMode = "FlatFace"
sketch15.AttachmentOffset = App.Placement(Vector(0, 0, 68.5), App.Rotation())
sketch15.addGeometry(Part.Circle(Vector(35, -10, 0), Vector(0, 0, 1), 3.5), False)
sketch15.addConstraint([
    Sketcher.Constraint("Diameter", 0, 7.0),
    Sketcher.Constraint("DistanceX", -1, 1, 0, 3, 35.0),
    Sketcher.Constraint("DistanceY", 0, 3, -1, 1, 10.0),
])
sketch15.setExpression("Constraints[0]", "Params.sketch15_diameter")
pocket10 = body.newObject("PartDesign::Pocket", "Pocket009")
pocket10.Profile = sketch15
pocket10.setExpression("Length", "Params.pocket10_length")
pocket10.Reversed = True

# Sketch on YZ plane
sketch16 = body.newObject("Sketcher::SketchObject", "Sketch015")
sketch16.AttachmentSupport = (doc.getObject("YZ_Plane"), [""])
sketch16.MapMode = "FlatFace"
sketch16.AttachmentOffset = App.Placement(Vector(0, 0, 72.5), App.Rotation())
sketch16.addGeometry([
    Part.LineSegment(Vector(45, 14, 0), Vector(1, 14, 0)),  # 0
    Part.LineSegment(Vector(1, 14, 0), Vector(1, -34, 0)),  # 1
    Part.LineSegment(Vector(1, -34, 0), Vector(45, -34, 0)),  # 2
    Part.LineSegment(Vector(45, -34, 0), Vector(45, 14, 0)),  # 3
    Part.Circle(Vector(15, -3, 0), Vector(0, 0, 1), 3),  # 4
    Part.Circle(Vector(8, -10, 0), Vector(0, 0, 1), 3),  # 5
    Part.Circle(Vector(15, -17, 0), Vector(0, 0, 1), 3),  # 6
    Part.Circle(Vector(35, -10, 0), Vector(0, 0, 1), 2),  # 7
], False)
sketch16.addConstraint([
    Sketcher.Constraint("Coincident", 0, 2, 1, 1),
    Sketcher.Constraint("Coincident", 1, 2, 2, 1),
    Sketcher.Constraint("Coincident", 2, 2, 3, 1),
    Sketcher.Constraint("Coincident", 3, 2, 0, 1),
    Sketcher.Constraint("Horizontal", 0),
    Sketcher.Constraint("Vertical", 1),
    Sketcher.Constraint("Horizontal", 2),
    Sketcher.Constraint("Vertical", 3),
    Sketcher.Constraint("Equal", 4, 5),
    Sketcher.Constraint("Equal", 5, 6),
    Sketcher.Constraint("Horizontal", 5, 3, 7, 3),
    Sketcher.Constraint("Vertical", 4, 3, 6, 3),
    Sketcher.Constraint("Diameter", 4, 6.0),
    Sketcher.Constraint("Diameter", 7, 4.05),
    Sketcher.Constraint("DistanceX", 0, 2, 0, 1, 44.0),
    Sketcher.Constraint("DistanceY", 1, 2, 1, 1, 48.0),
    Sketcher.Constraint("DistanceX", -1, 1, 4, 3, 15.0),
    Sketcher.Constraint("DistanceY", 4, 3, -1, 1, 3.0),
    Sketcher.Constraint("DistanceX", -1, 1, 5, 3, 8.0),
    Sketcher.Constraint("DistanceY", 5, 3, -1, 1, 10.0),
    Sketcher.Constraint("DistanceY", 6, 3, -1, 1, 17.0),
    Sketcher.Constraint("DistanceX", -1, 1, 7, 3, 35.0),
    Sketcher.Constraint("DistanceX", -1, 1, 0, 2, 1.0),
    Sketcher.Constraint("DistanceY", -1, 1, 0, 2, 14.0),
])
sketch16.setExpression("Constraints[12]", "Params.sketch16_diameter")
sketch16.setExpression("Constraints[13]", "Params.sketch16_diameter2")
sketch16.setExpression("Constraints[14]", "Params.sketch16_width")
sketch16.setExpression("Constraints[15]", "Params.sketch16_height")
pad6 = body.newObject("PartDesign::Pad", "Pad005")
pad6.Profile = sketch16
pad6.setExpression("Length", "Params.pad6_length")

# Sketch on YZ plane
sketch17 = body.newObject("Sketcher::SketchObject", "Sketch016")
sketch17.AttachmentSupport = (doc.getObject("YZ_Plane"), [""])
sketch17.MapMode = "FlatFace"
sketch17.AttachmentOffset = App.Placement(Vector(0, 0, 74.5), App.Rotation())
sketch17.addGeometry(Part.Circle(Vector(35, -10, 0), Vector(0, 0, 1), 4), False)
sketch17.addConstraint([
    Sketcher.Constraint("Diameter", 0, 8.0),
    Sketcher.Constraint("DistanceX", -1, 1, 0, 3, 35.0),
    Sketcher.Constraint("DistanceY", 0, 3, -1, 1, 10.0),
])
sketch17.setExpression("Constraints[0]", "Params.sketch17_diameter")
pocket11 = body.newObject("PartDesign::Pocket", "Pocket010")
pocket11.Profile = sketch17
pocket11.setExpression("Length", "Params.pocket11_length")

doc.recompute()
